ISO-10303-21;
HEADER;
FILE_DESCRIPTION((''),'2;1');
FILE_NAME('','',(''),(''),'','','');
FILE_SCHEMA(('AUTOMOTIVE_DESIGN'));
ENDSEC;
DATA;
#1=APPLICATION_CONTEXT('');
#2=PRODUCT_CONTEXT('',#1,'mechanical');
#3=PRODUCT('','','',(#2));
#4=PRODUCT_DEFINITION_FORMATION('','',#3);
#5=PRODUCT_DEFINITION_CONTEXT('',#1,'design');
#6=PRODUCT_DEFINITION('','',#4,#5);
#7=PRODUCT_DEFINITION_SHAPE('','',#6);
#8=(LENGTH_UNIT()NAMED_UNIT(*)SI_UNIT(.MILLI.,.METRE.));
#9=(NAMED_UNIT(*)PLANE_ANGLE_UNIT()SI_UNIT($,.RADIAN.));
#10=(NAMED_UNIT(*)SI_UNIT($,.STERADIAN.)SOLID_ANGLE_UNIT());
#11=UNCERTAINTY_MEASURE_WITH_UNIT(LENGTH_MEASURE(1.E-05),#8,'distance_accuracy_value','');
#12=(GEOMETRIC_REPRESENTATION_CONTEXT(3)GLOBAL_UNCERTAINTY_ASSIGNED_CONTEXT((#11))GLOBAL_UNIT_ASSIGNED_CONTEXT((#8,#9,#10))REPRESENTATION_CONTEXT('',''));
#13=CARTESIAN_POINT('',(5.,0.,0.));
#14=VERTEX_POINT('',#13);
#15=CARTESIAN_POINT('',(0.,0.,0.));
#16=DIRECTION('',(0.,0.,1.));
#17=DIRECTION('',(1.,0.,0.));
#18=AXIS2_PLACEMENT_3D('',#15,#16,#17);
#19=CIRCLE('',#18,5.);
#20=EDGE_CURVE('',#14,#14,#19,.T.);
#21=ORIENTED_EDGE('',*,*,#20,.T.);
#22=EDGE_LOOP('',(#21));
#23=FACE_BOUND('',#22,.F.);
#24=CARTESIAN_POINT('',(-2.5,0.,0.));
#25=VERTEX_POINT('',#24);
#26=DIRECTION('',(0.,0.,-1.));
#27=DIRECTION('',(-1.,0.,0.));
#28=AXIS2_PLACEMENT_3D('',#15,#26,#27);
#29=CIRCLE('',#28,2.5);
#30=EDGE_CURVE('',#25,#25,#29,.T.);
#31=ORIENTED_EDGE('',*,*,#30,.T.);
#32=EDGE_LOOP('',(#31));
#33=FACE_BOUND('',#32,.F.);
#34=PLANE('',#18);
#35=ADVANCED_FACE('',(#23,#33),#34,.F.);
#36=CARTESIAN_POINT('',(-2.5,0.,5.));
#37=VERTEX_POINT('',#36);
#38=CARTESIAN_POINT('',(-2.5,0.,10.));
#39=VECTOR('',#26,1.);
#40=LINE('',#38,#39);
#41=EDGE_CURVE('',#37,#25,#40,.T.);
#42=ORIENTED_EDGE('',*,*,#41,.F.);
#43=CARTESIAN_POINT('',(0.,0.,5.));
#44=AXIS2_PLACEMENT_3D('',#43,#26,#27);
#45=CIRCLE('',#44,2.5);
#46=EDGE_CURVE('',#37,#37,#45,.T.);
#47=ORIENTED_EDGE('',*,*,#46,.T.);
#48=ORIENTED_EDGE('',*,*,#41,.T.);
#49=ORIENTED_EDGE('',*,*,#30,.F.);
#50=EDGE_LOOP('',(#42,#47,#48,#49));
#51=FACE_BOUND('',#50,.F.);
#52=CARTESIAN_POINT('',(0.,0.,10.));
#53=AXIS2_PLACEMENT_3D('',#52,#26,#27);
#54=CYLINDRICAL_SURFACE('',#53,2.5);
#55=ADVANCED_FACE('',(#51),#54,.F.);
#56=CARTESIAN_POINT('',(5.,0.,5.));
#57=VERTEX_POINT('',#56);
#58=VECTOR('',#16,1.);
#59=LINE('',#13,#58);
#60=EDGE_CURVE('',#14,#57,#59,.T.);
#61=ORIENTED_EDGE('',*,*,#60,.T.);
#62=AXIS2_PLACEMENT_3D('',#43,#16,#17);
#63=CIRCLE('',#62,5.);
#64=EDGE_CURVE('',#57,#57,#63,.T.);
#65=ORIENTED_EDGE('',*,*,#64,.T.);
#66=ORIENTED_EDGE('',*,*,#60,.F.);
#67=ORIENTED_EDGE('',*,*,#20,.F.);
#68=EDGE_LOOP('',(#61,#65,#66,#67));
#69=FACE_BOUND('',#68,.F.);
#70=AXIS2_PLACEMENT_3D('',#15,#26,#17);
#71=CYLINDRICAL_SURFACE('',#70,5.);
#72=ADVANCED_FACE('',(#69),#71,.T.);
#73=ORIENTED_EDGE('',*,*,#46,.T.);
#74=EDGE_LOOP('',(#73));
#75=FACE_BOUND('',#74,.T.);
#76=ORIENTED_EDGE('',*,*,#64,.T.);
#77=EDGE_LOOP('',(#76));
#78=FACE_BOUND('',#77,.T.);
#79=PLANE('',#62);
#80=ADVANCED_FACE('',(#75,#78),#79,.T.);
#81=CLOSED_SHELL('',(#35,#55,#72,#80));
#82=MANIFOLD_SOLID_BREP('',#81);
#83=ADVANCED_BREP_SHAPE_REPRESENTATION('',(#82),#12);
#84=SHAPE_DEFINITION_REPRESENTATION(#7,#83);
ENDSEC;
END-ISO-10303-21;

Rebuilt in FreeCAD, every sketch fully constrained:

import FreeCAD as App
import Part
import Sketcher

doc = App.newDocument("Part")
body = doc.addObject("PartDesign::Body", "Body")

# Sketch on XY plane
sketch1 = body.newObject("Sketcher::SketchObject", "Sketch")
sketch1.AttachmentSupport = (doc.getObject("XY_Plane"), [""])
sketch1.MapMode = "FlatFace"
sketch1.addGeometry(Part.Circle(App.Vector(0, 0, 0), App.Vector(0, 0, 1), 5), False)
sketch1.addConstraint(Sketcher.Constraint("Coincident", 0, 3, -1, 1))
sketch1.addConstraint(Sketcher.Constraint("Diameter", 0, 10.0))
pad1 = body.newObject("PartDesign::Pad", "Pad")
pad1.Profile = sketch1
pad1.Length = 5

# Sketch on XY plane
sketch2 = body.newObject("Sketcher::SketchObject", "Sketch001")
sketch2.AttachmentSupport = (doc.getObject("XY_Plane"), [""])
sketch2.MapMode = "FlatFace"
sketch2.AttachmentOffset = App.Placement(App.Vector(0, 0, 5), App.Rotation())
sketch2.addGeometry(Part.Circle(App.Vector(0, 0, 0), App.Vector(0, 0, 1), 2.5), False)
sketch2.addConstraint(Sketcher.Constraint("Coincident", 0, 3, -1, 1))
sketch2.addConstraint(Sketcher.Constraint("Diameter", 0, 5.0))
doc.recompute()
hole = body.newObject("PartDesign::Hole", "Hole")
hole.Profile = sketch2
hole.ThreadType = "None"
hole.Diameter = 5
hole.DepthType = "Dimension"
hole.Depth = 5
hole.DrillPoint = "Flat"

doc.recompute()
